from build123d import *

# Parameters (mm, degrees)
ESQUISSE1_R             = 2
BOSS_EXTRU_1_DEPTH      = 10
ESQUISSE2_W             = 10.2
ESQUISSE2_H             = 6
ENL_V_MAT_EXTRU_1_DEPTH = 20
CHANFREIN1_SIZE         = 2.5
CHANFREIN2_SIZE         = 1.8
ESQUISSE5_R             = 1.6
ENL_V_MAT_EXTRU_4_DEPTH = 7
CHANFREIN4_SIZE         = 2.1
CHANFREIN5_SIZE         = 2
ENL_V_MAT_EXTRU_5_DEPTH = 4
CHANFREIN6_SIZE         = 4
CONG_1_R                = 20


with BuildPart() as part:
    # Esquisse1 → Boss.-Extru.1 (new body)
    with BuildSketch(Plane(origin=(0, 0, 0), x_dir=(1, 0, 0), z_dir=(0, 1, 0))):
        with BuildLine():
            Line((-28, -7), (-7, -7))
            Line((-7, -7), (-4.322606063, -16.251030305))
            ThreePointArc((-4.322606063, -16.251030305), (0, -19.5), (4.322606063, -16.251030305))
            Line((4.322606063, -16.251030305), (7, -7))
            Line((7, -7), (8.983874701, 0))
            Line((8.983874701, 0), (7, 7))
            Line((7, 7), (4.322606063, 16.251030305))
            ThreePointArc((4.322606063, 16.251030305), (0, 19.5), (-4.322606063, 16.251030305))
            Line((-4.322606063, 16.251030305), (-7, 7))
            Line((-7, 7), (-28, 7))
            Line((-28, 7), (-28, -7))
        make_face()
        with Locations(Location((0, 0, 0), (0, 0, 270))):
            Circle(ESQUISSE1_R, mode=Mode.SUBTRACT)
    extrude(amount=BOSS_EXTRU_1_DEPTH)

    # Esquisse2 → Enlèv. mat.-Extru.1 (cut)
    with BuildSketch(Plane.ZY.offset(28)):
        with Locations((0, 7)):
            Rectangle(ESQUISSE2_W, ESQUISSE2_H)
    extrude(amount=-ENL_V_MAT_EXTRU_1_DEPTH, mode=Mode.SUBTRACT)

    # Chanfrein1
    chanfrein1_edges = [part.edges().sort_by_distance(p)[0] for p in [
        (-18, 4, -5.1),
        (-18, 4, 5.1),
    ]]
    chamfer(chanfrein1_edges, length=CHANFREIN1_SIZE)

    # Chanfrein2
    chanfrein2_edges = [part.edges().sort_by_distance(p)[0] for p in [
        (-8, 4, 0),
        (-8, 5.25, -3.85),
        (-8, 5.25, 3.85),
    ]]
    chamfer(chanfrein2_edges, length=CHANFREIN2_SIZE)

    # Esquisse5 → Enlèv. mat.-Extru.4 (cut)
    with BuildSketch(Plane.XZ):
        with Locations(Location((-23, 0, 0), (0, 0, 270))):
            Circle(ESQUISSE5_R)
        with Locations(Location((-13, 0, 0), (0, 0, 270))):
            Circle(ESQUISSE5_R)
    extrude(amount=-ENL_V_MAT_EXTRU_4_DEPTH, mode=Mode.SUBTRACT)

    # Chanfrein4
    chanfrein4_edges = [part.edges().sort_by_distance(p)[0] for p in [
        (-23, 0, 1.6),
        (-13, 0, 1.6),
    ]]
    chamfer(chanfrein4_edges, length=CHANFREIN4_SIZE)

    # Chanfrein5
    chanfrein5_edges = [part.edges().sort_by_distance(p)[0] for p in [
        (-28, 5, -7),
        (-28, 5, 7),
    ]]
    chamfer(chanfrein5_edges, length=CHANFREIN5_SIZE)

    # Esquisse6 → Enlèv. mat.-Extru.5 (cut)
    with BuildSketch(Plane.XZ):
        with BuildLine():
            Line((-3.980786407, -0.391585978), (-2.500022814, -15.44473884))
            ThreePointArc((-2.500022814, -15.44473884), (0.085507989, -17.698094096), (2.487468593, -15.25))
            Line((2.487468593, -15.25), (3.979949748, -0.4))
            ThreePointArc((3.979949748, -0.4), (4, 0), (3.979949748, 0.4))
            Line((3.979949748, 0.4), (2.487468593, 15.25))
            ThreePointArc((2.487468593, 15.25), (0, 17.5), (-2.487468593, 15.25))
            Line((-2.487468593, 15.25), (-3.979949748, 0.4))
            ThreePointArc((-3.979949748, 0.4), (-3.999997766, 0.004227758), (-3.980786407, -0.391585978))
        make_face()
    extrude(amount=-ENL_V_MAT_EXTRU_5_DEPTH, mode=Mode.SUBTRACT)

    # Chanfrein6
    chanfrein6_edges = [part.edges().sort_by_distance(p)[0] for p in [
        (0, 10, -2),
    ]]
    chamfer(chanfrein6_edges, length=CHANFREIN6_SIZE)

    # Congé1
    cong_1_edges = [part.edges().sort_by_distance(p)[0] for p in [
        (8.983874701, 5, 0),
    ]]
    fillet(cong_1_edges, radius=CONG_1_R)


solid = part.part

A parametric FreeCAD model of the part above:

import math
import FreeCAD as App
import Part
import Sketcher
Q = App.Units.Quantity


def edges_at(feature, points):
    """Names of the edges that pass closest to the given points."""
    edges = feature.Shape.Edges
    near = lambda p: min(range(len(edges)), key=lambda i: edges[i].distToShape(Part.Vertex(*p))[0])
    return sorted({f"Edge{near(p) + 1}" for p in points})

doc = App.newDocument("Part")
body = doc.addObject("PartDesign::Body", "Body")

sketch1 = body.newObject("Sketcher::SketchObject", "Sketch")
sketch1.AttachmentSupport = (doc.getObject("XZ_Plane"), [""])
sketch1.MapMode = "FlatFace"
sketch1.addGeometry(Part.LineSegment(App.Vector(-28, 7, 0), App.Vector(-7, 7, 0)), False)
sketch1.addGeometry(Part.LineSegment(App.Vector(-7, 7, 0), App.Vector(-4.322606, 16.25103, 0)), False)
sketch1.addGeometry(Part.ArcOfCircle(Part.Circle(App.Vector(0, 15, 0), App.Vector(0, 0, 1), 4.5), math.radians(16.141276), math.radians(163.858724)), False)
sketch1.addGeometry(Part.LineSegment(App.Vector(4.322606, 16.25103, 0), App.Vector(7, 7, 0)), False)
sketch1.addGeometry(Part.LineSegment(App.Vector(7, 7, 0), App.Vector(8.983875, 0, 0)), False)
sketch1.addGeometry(Part.LineSegment(App.Vector(8.983875, 0, 0), App.Vector(7, -7, 0)), False)
sketch1.addGeometry(Part.LineSegment(App.Vector(7, -7, 0), App.Vector(4.322606, -16.25103, 0)), False)
sketch1.addGeometry(Part.ArcOfCircle(Part.Circle(App.Vector(0, -15, 0), App.Vector(0, 0, 1), 4.5), math.radians(-163.858724), math.radians(-16.141276)), False)
sketch1.addGeometry(Part.LineSegment(App.Vector(-4.322606, -16.25103, 0), App.Vector(-7, -7, 0)), False)
sketch1.addGeometry(Part.LineSegment(App.Vector(-7, -7, 0), App.Vector(-28, -7, 0)), False)
sketch1.addGeometry(Part.LineSegment(App.Vector(-28, -7, 0), App.Vector(-28, 7, 0)), False)
sketch1.addGeometry(Part.Circle(App.Vector(0, 0, 0), App.Vector(0, 0, 1), 2), False)
sketch1.addConstraint(Sketcher.Constraint("Coincident", 0, 2, 1, 1))
sketch1.addConstraint(Sketcher.Constraint("Tangent", 1, 2, 2, 2))
sketch1.addConstraint(Sketcher.Constraint("Tangent", 2, 1, 3, 1))
sketch1.addConstraint(Sketcher.Constraint("Coincident", 3, 2, 4, 1))
sketch1.addConstraint(Sketcher.Constraint("Coincident", 4, 2, 5, 1))
sketch1.addConstraint(Sketcher.Constraint("Coincident", 5, 2, 6, 1))
sketch1.addConstraint(Sketcher.Constraint("Tangent", 6, 2, 7, 2))
sketch1.addConstraint(Sketcher.Constraint("Tangent", 7, 1, 8, 1))
sketch1.addConstraint(Sketcher.Constraint("Coincident", 8, 2, 9, 1))
sketch1.addConstraint(Sketcher.Constraint("Coincident", 9, 2, 10, 1))
sketch1.addConstraint(Sketcher.Constraint("Coincident", 10, 2, 0, 1))
sketch1.addConstraint(Sketcher.Constraint("Horizontal", 0))
sketch1.addConstraint(Sketcher.Constraint("Horizontal", 9))
sketch1.addConstraint(Sketcher.Constraint("Vertical", 10))
sketch1.addConstraint(Sketcher.Constraint("Coincident", 11, 3, -1, 1))
sketch1.addConstraint(Sketcher.Constraint("Equal", 2, 7))
sketch1.addConstraint(Sketcher.Constraint("Symmetric", 2, 3, 7, 3, -1, 1))
sketch1.addConstraint(Sketcher.Constraint("Symmetric", 0, 2, 5, 2, -1, 1))
sketch1.addConstraint(Sketcher.Constraint("Symmetric", 3, 2, 8, 2, -1, 1))
sketch1.addConstraint(Sketcher.Constraint("Symmetric", 1, 2, 2, 1, -2))
sketch1.addConstraint(Sketcher.Constraint("PointOnObject", 4, 2, -1))
sketch1.addConstraint(Sketcher.Constraint("Horizontal", 0, 2, 3, 2))
sketch1.addConstraint(Sketcher.Constraint("Diameter", 11, Q("4 mm")))
sketch1.addConstraint(Sketcher.Constraint("Radius", 2, Q("4.5 mm")))
sketch1.addConstraint(Sketcher.Constraint("DistanceX", 0, 1, 0, 2, Q("21 mm")))
sketch1.addConstraint(Sketcher.Constraint("DistanceY", 10, 1, 10, 2, Q("14 mm")))
sketch1.addConstraint(Sketcher.Constraint("DistanceY", -1, 1, 2, 3, Q("15 mm")))
sketch1.addConstraint(Sketcher.Constraint("DistanceX", 0, 2, -1, 1, Q("7 mm")))
sketch1.addConstraint(Sketcher.Constraint("DistanceX", 2, 1, 4, 2, Q("4.661269 mm")))
pad1 = body.newObject("PartDesign::Pad", "Pad")
pad1.Profile = sketch1
pad1.Length = 10
pad1.Reversed = True

sketch2 = body.newObject("Sketcher::SketchObject", "Sketch001")
sketch2.AttachmentSupport = (doc.getObject("YZ_Plane"), [""])
sketch2.MapMode = "FlatFace"
sketch2.AttachmentOffset = App.Placement(App.Vector(0, 0, -28), App.Rotation())
sketch2.addGeometry(Part.LineSegment(App.Vector(10, -5.1, 0), App.Vector(4, -5.1, 0)), False)
sketch2.addGeometry(Part.LineSegment(App.Vector(4, -5.1, 0), App.Vector(4, 5.1, 0)), False)
sketch2.addGeometry(Part.LineSegment(App.Vector(4, 5.1, 0), App.Vector(10, 5.1, 0)), False)
sketch2.addGeometry(Part.LineSegment(App.Vector(10, 5.1, 0), App.Vector(10, -5.1, 0)), False)
sketch2.addConstraint(Sketcher.Constraint("Coincident", 0, 2, 1, 1))
sketch2.addConstraint(Sketcher.Constraint("Coincident", 1, 2, 2, 1))
sketch2.addConstraint(Sketcher.Constraint("Coincident", 2, 2, 3, 1))
sketch2.addConstraint(Sketcher.Constraint("Coincident", 3, 2, 0, 1))
sketch2.addConstraint(Sketcher.Constraint("Horizontal", 0))
sketch2.addConstraint(Sketcher.Constraint("Vertical", 1))
sketch2.addConstraint(Sketcher.Constraint("Horizontal", 2))
sketch2.addConstraint(Sketcher.Constraint("Vertical", 3))
sketch2.addConstraint(Sketcher.Constraint("DistanceX", 0, 2, 0, 1, Q("6 mm")))
sketch2.addConstraint(Sketcher.Constraint("DistanceY", 1, 1, 1, 2, Q("10.2 mm")))
sketch2.addConstraint(Sketcher.Constraint("DistanceX", -1, 1, 0, 2, Q("4 mm")))
sketch2.addConstraint(Sketcher.Constraint("DistanceY", 0, 2, -1, 1, Q("5.1 mm")))
pocket1 = body.newObject("PartDesign::Pocket", "Pocket")
pocket1.Profile = sketch2
pocket1.Length = 20
pocket1.Reversed = True
doc.recompute()

chamfer = body.newObject("PartDesign::Chamfer", "Chamfer")
chamfer.Base = (pocket1, edges_at(pocket1, [(-18, 4, -5.1), (-18, 4, 5.1)]))
chamfer.Size = 2.5
doc.recompute()

chamfer2 = body.newObject("PartDesign::Chamfer", "Chamfer001")
chamfer2.Base = (chamfer, edges_at(chamfer, [(-8, 4, 0), (-8, 5.25, -3.85), (-8, 5.25, 3.85)]))
chamfer2.Size = 1.8

sketch3 = body.newObject("Sketcher::SketchObject", "Sketch002")
sketch3.AttachmentSupport = (doc.getObject("XZ_Plane"), [""])
sketch3.MapMode = "FlatFace"
sketch3.addGeometry(Part.Circle(App.Vector(-23, 0, 0), App.Vector(0, 0, 1), 1.6), False)
sketch3.addGeometry(Part.Circle(App.Vector(-13, 0, 0), App.Vector(0, 0, 1), 1.6), False)
sketch3.addConstraint(Sketcher.Constraint("Equal", 0, 1))
sketch3.addConstraint(Sketcher.Constraint("PointOnObject", 0, 3, -1))
sketch3.addConstraint(Sketcher.Constraint("PointOnObject", 1, 3, -1))
sketch3.addConstraint(Sketcher.Constraint("Diameter", 0, Q("3.2 mm")))
sketch3.addConstraint(Sketcher.Constraint("DistanceX", 0, 3, -1, 1, Q("23 mm")))
sketch3.addConstraint(Sketcher.Constraint("DistanceX", 1, 3, -1, 1, Q("13 mm")))
pocket2 = body.newObject("PartDesign::Pocket", "Pocket001")
pocket2.Profile = sketch3
pocket2.Length = 7
doc.recompute()

chamfer3 = body.newObject("PartDesign::Chamfer", "Chamfer002")
chamfer3.Base = (pocket2, edges_at(pocket2, [(-23, 0, 1.6), (-13, 0, 1.6)]))
chamfer3.Size = 2.1
doc.recompute()

chamfer4 = body.newObject("PartDesign::Chamfer", "Chamfer003")
chamfer4.Base = (chamfer3, edges_at(chamfer3, [(-28, 5, -7), (-28, 5, 7)]))
chamfer4.Size = 2

sketch4 = body.newObject("Sketcher::SketchObject", "Sketch003")
sketch4.AttachmentSupport = (doc.getObject("XZ_Plane"), [""])
sketch4.MapMode = "FlatFace"
sketch4.addGeometry(Part.LineSegment(App.Vector(-3.980786, -0.391586, 0), App.Vector(-2.500023, -15.444739, 0)), False)
sketch4.addGeometry(Part.ArcOfCircle(Part.Circle(App.Vector(-0.012031, -15.199998, 0), App.Vector(0, 0, 1), 2.5), math.radians(-174.381946), math.radians(-1.146047)), False)
sketch4.addGeometry(Part.LineSegment(App.Vector(2.487469, -15.25, 0), App.Vector(3.97995, -0.4, 0)), False)
sketch4.addGeometry(Part.ArcOfCircle(Part.Circle(App.Vector(0, 0, 0), App.Vector(0, 0, 1), 4), math.radians(-5.739171), math.radians(5.739171)), False)
sketch4.addGeometry(Part.LineSegment(App.Vector(3.97995, 0.4, 0), App.Vector(2.487469, 15.25, 0)), False)
sketch4.addGeometry(Part.ArcOfCircle(Part.Circle(App.Vector(0, 15, 0), App.Vector(0, 0, 1), 2.5), math.radians(5.73917), math.radians(174.26083)), False)
sketch4.addGeometry(Part.LineSegment(App.Vector(-2.487469, 15.25, 0), App.Vector(-3.97995, 0.4, 0)), False)
sketch4.addGeometry(Part.ArcOfCircle(Part.Circle(App.Vector(0, 0, 0), App.Vector(0, 0, 1), 4), math.radians(174.260829), math.radians(185.618054)), False)
sketch4.addConstraint(Sketcher.Constraint("Tangent", 0, 2, 1, 1))
sketch4.addConstraint(Sketcher.Constraint("Coincident", 1, 2, 2, 1))
sketch4.addConstraint(Sketcher.Constraint("Tangent", 2, 2, 3, 1))
sketch4.addConstraint(Sketcher.Constraint("Tangent", 3, 2, 4, 1))
sketch4.addConstraint(Sketcher.Constraint("Tangent", 4, 2, 5, 1))
sketch4.addConstraint(Sketcher.Constraint("Tangent", 5, 2, 6, 1))
sketch4.addConstraint(Sketcher.Constraint("Tangent", 6, 2, 7, 1))
sketch4.addConstraint(Sketcher.Constraint("Tangent", 7, 2, 0, 1))
sketch4.addConstraint(Sketcher.Constraint("Coincident", 3, 3, -1, 1))
sketch4.addConstraint(Sketcher.Constraint("Coincident", 7, 3, -1, 1))
sketch4.addConstraint(Sketcher.Constraint("Equal", 1, 5))
sketch4.addConstraint(Sketcher.Constraint("Equal", 3, 7))
sketch4.addConstraint(Sketcher.Constraint("Symmetric", 1, 2, 5, 2, -1, 1))
sketch4.addConstraint(Sketcher.Constraint("PointOnObject", 5, 3, -2))
sketch4.addConstraint(Sketcher.Constraint("Radius", 3, Q("4 mm")))
sketch4.addConstraint(Sketcher.Constraint("Radius", 1, Q("2.5 mm")))
sketch4.addConstraint(Sketcher.Constraint("DistanceY", -1, 1, 5, 3, Q("15 mm")))
sketch4.addConstraint(Sketcher.Constraint("DistanceX", 1, 3, 1, 2, Q("2.4995 mm")))
pocket3 = body.newObject("PartDesign::Pocket", "Pocket002")
pocket3.Profile = sketch4
pocket3.Length = 4
doc.recompute()

chamfer5 = body.newObject("PartDesign::Chamfer", "Chamfer004")
chamfer5.Base = (pocket3, edges_at(pocket3, [(0, 10, -2)]))
chamfer5.Size = 4
doc.recompute()

fillet = body.newObject("PartDesign::Fillet", "Fillet")
fillet.Base = (chamfer5, edges_at(chamfer5, [(8.984, 5, 0)]))
fillet.Radius = 20

doc.recompute()
